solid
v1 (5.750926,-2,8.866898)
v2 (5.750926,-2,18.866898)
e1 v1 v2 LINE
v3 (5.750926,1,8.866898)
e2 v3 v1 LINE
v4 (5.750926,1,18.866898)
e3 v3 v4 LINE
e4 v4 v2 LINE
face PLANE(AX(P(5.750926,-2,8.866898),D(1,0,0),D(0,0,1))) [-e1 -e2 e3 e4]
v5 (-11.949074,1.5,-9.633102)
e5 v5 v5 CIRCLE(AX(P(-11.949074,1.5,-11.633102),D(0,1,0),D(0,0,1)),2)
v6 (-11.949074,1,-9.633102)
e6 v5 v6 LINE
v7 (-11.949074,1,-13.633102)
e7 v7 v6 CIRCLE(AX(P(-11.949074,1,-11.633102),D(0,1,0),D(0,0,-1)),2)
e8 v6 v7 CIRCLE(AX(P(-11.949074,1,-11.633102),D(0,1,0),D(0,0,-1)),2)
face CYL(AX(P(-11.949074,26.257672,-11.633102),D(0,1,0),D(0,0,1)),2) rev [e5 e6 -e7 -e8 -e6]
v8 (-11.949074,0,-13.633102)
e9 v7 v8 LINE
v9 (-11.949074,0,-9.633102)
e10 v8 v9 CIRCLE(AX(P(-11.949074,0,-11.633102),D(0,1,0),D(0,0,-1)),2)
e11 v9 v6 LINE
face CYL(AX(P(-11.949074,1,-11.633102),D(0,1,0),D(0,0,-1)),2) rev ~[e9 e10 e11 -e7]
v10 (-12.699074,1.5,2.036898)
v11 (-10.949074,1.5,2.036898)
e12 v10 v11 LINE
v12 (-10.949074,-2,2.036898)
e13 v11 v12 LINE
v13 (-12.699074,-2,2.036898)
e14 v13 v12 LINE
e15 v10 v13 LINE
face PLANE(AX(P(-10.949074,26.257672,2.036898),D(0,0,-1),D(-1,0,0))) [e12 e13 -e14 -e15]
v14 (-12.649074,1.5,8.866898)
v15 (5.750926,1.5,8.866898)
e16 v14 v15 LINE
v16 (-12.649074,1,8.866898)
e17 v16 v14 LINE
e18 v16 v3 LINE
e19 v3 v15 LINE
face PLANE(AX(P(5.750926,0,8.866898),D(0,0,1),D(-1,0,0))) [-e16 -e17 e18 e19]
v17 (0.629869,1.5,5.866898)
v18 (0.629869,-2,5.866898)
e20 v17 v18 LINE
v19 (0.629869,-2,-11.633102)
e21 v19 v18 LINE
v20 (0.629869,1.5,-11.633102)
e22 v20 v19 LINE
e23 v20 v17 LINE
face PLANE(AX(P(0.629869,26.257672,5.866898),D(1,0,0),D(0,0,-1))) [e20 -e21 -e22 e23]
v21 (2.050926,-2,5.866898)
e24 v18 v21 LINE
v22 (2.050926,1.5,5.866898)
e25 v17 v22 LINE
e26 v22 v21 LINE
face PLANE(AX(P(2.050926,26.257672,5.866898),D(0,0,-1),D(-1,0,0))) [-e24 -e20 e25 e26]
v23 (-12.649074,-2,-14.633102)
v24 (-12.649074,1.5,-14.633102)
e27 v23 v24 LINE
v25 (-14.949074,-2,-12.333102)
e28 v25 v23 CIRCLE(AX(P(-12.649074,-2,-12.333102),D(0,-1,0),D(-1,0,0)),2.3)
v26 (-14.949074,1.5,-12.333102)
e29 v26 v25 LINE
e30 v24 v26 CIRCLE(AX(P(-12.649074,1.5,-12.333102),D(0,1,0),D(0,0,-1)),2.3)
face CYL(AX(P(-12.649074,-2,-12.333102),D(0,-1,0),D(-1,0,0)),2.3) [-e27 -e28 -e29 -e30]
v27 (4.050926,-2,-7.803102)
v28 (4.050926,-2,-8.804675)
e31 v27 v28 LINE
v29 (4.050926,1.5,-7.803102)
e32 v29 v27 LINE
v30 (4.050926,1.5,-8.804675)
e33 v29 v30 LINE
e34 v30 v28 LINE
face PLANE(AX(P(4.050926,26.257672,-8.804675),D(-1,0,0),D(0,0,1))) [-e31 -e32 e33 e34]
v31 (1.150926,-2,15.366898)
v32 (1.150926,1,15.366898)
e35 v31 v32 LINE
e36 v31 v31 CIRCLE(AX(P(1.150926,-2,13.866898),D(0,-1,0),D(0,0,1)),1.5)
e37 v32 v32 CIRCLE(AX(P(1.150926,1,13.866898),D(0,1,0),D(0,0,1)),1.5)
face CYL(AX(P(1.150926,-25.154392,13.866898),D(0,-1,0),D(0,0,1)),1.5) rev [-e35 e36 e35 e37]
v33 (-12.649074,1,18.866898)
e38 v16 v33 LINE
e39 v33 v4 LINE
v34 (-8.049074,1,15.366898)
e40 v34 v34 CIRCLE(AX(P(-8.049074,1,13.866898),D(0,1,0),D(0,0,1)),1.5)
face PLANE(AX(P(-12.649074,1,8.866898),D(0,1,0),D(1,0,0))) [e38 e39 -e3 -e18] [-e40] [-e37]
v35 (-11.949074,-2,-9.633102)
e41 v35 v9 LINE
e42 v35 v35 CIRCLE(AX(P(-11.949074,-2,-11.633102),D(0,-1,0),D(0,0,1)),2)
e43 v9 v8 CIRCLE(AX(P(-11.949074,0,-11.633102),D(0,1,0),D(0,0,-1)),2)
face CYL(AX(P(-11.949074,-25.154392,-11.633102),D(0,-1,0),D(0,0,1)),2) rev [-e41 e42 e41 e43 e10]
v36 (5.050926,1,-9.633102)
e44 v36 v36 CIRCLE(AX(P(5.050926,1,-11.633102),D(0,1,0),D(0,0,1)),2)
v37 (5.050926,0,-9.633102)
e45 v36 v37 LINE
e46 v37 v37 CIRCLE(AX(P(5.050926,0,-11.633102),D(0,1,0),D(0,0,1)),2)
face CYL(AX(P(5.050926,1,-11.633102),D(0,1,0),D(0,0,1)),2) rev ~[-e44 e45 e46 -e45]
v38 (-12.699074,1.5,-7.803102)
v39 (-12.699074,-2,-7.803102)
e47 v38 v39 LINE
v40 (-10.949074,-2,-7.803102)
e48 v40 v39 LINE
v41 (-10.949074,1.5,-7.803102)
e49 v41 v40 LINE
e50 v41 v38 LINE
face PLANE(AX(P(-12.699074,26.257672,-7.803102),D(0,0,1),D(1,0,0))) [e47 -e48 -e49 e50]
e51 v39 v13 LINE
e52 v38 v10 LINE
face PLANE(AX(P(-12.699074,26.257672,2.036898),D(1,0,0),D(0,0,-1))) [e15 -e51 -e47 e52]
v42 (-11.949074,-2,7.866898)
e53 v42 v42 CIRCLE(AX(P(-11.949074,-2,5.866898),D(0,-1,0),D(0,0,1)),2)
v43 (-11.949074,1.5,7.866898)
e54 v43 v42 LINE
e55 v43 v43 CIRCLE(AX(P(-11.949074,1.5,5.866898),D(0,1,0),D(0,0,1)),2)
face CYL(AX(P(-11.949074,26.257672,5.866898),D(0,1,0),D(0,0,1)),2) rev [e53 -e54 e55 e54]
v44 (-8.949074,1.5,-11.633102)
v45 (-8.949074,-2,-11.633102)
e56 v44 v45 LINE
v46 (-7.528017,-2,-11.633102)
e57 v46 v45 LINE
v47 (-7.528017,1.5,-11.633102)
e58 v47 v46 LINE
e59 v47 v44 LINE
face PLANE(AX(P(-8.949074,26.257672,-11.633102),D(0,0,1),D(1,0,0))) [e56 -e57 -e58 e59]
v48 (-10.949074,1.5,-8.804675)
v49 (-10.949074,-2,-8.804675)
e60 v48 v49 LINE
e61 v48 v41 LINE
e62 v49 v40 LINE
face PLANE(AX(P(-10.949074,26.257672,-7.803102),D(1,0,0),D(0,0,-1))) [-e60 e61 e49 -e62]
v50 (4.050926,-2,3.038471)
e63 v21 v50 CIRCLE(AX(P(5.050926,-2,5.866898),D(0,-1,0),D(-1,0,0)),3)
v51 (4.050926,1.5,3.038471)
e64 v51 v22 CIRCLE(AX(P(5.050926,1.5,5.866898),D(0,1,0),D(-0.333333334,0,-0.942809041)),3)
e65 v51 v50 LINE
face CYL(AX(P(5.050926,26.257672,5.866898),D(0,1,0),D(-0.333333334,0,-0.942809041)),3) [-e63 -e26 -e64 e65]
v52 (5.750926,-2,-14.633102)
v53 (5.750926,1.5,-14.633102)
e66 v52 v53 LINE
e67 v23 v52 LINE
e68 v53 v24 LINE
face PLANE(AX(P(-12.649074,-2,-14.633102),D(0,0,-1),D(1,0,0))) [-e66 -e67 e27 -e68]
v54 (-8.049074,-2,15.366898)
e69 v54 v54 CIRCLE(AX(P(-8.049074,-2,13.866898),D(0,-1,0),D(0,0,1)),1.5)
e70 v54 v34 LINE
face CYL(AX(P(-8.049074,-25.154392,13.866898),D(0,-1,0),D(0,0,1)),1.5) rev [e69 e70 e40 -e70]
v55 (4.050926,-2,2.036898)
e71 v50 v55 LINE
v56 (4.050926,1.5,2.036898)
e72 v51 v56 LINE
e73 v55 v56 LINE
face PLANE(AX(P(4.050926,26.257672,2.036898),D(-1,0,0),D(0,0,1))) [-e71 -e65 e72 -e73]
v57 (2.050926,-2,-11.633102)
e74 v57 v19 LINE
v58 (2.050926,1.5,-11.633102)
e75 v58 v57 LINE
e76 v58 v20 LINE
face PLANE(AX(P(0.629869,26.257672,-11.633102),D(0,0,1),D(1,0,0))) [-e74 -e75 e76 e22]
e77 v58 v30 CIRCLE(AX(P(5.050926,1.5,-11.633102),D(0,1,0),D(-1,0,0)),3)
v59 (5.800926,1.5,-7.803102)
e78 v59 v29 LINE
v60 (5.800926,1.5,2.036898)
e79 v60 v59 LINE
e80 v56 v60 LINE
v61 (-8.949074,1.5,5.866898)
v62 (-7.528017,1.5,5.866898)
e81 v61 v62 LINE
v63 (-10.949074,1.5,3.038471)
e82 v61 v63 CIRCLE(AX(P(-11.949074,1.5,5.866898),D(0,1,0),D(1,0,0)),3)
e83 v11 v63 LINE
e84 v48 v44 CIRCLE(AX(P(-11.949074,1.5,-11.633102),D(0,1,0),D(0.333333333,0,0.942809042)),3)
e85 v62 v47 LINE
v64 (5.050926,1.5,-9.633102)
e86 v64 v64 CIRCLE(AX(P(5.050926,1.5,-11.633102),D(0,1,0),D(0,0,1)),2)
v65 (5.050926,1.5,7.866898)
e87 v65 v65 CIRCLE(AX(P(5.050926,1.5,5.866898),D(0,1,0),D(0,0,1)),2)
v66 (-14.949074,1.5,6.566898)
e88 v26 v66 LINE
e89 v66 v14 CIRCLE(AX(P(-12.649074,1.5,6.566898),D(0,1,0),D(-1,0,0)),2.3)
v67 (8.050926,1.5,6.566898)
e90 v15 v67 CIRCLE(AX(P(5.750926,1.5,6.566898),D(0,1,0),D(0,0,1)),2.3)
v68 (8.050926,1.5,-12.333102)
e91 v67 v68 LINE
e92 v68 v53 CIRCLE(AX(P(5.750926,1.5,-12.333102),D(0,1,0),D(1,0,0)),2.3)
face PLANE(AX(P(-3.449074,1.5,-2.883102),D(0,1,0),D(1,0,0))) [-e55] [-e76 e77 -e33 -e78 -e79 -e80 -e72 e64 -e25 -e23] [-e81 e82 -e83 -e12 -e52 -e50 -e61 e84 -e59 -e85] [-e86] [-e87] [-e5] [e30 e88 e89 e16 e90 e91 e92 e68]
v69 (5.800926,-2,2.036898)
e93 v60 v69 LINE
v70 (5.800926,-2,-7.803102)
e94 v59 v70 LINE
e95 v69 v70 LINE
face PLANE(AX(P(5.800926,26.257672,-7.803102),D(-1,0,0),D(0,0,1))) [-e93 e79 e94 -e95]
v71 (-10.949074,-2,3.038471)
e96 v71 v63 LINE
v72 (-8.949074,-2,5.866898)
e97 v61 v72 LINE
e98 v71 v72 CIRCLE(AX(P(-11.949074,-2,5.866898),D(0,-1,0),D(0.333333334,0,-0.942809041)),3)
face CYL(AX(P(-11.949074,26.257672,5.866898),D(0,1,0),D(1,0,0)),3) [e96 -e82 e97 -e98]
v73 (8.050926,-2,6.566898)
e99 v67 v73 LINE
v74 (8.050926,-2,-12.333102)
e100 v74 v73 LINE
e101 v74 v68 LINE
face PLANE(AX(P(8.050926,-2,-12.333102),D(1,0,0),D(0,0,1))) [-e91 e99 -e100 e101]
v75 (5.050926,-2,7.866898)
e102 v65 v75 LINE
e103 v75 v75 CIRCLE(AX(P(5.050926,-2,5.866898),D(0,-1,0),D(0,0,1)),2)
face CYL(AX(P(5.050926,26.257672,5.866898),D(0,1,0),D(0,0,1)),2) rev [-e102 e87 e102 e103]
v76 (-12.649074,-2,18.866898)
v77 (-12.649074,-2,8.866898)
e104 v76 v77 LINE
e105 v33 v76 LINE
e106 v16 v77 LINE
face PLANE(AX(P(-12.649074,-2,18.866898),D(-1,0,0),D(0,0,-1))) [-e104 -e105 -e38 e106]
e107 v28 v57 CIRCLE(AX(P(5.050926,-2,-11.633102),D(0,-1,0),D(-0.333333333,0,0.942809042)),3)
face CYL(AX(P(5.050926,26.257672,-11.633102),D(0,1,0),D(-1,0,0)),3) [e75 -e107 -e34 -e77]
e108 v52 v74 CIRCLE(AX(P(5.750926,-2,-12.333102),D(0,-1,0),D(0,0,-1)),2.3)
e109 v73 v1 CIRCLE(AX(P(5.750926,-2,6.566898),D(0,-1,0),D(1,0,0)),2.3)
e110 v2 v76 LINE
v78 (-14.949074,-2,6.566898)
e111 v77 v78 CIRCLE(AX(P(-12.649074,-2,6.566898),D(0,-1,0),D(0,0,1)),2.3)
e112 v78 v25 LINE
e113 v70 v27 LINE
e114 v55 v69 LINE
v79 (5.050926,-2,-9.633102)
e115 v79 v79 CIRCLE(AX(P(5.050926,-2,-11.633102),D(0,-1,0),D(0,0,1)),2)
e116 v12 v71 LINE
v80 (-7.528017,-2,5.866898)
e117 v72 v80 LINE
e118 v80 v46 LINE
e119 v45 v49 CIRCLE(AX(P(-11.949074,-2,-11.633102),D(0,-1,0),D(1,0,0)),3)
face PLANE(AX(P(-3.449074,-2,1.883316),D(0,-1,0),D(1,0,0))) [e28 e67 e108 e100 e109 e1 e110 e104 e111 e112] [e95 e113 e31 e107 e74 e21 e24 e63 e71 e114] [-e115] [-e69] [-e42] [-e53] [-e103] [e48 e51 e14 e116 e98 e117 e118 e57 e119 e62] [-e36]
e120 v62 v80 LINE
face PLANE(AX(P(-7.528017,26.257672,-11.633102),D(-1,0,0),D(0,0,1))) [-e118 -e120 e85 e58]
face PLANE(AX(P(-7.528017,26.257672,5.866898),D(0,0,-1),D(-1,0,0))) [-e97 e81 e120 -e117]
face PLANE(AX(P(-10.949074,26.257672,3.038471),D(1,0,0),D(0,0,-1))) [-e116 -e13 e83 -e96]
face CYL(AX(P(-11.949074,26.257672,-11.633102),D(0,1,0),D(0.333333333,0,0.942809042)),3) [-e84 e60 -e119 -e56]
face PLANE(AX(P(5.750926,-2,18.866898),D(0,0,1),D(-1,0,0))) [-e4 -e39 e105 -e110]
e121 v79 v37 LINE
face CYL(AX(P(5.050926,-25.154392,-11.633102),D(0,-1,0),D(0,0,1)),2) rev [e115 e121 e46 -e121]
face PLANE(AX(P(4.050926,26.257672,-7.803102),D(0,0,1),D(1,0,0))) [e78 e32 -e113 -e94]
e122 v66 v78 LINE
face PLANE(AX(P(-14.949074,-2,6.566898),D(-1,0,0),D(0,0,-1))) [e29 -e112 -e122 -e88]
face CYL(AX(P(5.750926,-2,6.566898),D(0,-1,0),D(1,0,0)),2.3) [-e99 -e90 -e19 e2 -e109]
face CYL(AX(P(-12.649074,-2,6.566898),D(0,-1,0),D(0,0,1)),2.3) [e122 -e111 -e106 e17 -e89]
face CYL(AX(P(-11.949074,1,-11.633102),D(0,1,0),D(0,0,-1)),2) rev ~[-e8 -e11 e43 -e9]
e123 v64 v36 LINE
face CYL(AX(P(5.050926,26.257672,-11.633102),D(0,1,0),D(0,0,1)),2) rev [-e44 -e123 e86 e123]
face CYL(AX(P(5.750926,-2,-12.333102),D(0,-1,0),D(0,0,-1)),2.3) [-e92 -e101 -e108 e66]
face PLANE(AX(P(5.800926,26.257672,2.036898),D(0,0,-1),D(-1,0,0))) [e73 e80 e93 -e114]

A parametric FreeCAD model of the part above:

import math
import FreeCAD as App
import Part
import Sketcher

V = App.Vector


def add_polygon(sketch, points):
    """Adds a closed chain of lines whose ends are joined by coincident constraints."""
    first, n = sketch.GeometryCount, len(points)
    for a, b in zip(points, points[1:] + points[:1]):
        sketch.addGeometry(Part.LineSegment(App.Vector(*a, 0), App.Vector(*b, 0)), False)
    for i in range(n):
        sketch.addConstraint(Sketcher.Constraint("Coincident", first + i, 2, first + (i + 1) % n, 1))

doc = App.newDocument("Part")
body = doc.addObject("PartDesign::Body", "Body")

# Sketch on XZ plane
sketch1 = body.newObject("Sketcher::SketchObject", "Sketch")
sketch1.AttachmentSupport = (doc.getObject("XZ_Plane"), [""])
sketch1.MapMode = "FlatFace"
sketch1.addGeometry([
    Part.LineSegment(V(5.8, -14.6, 0), V(-12.6, -14.6, 0)),  # 0
    Part.ArcOfCircle(Part.Circle(V(-12.6, -12.3, 0), V(0, 0, 1), 2.3), math.radians(180), math.radians(270)),  # 1
    Part.LineSegment(V(-14.9, -12.3, 0), V(-14.9, 6.6, 0)),  # 2
    Part.ArcOfCircle(Part.Circle(V(-12.6, 6.6, 0), V(0, 0, 1), 2.3), math.radians(90), math.radians(180)),  # 3
    Part.LineSegment(V(-12.6, 8.9, 0), V(5.8, 8.9, 0)),  # 4
    Part.ArcOfCircle(Part.Circle(V(5.8, 6.6, 0), V(0, 0, 1), 2.3), math.radians(0), math.radians(90)),  # 5
    Part.LineSegment(V(8.1, 6.6, 0), V(8.1, -12.3, 0)),  # 6
    Part.ArcOfCircle(Part.Circle(V(5.8, -12.3, 0), V(0, 0, 1), 2.3), math.radians(-90), math.radians(0)),  # 7
], False)
sketch1.addConstraint([
    Sketcher.Constraint("Tangent", 0, 2, 1, 2),
    Sketcher.Constraint("Tangent", 1, 1, 2, 1),
    Sketcher.Constraint("Tangent", 2, 2, 3, 2),
    Sketcher.Constraint("Tangent", 3, 1, 4, 1),
    Sketcher.Constraint("Tangent", 4, 2, 5, 2),
    Sketcher.Constraint("Tangent", 5, 1, 6, 1),
    Sketcher.Constraint("Tangent", 6, 2, 7, 2),
    Sketcher.Constraint("Tangent", 7, 1, 0, 1),
    Sketcher.Constraint("Horizontal", 0),
    Sketcher.Constraint("Vertical", 2),
    Sketcher.Constraint("Horizontal", 4),
    Sketcher.Constraint("Vertical", 6),
    Sketcher.Constraint("Equal", 1, 3),
    Sketcher.Constraint("Equal", 3, 5),
    Sketcher.Constraint("Equal", 5, 7),
    Sketcher.Constraint("Radius", 1, 2.3),
    Sketcher.Constraint("DistanceX", 0, 2, 0, 1, 18.4),
    Sketcher.Constraint("DistanceY", 2, 1, 2, 2, 18.9),
    Sketcher.Constraint("DistanceY", 1, 3, -1, 1, 12.333102),
    Sketcher.Constraint("DistanceX", 1, 3, -1, 1, 12.649074),
])
pad1 = body.newObject("PartDesign::Pad", "Pad")
pad1.Profile = sketch1
pad1.Length = 2
pad1.Reversed = True

# Sketch on XZ plane
sketch2 = body.newObject("Sketcher::SketchObject", "Sketch001")
sketch2.AttachmentSupport = (doc.getObject("XZ_Plane"), [""])
sketch2.MapMode = "FlatFace"
sketch2.AttachmentOffset = App.Placement(V(0, 0, -2), App.Rotation())
sketch2.addGeometry([
    Part.LineSegment(V(5.8, -13.6, 0), V(-12.6, -13.6, 0)),  # 0
    Part.ArcOfCircle(Part.Circle(V(-12.6, -12.3, 0), V(0, 0, 1), 1.3), math.radians(180), math.radians(270)),  # 1
    Part.LineSegment(V(-13.9, -12.3, 0), V(-13.9, 6.6, 0)),  # 2
    Part.ArcOfCircle(Part.Circle(V(-12.6, 6.6, 0), V(0, 0, 1), 1.3), math.radians(90), math.radians(180)),  # 3
    Part.LineSegment(V(-12.6, 7.9, 0), V(5.8, 7.9, 0)),  # 4
    Part.ArcOfCircle(Part.Circle(V(5.8, 6.6, 0), V(0, 0, 1), 1.3), math.radians(0), math.radians(90)),  # 5
    Part.LineSegment(V(7.1, 6.6, 0), V(7.1, -12.3, 0)),  # 6
    Part.ArcOfCircle(Part.Circle(V(5.8, -12.3, 0), V(0, 0, 1), 1.3), math.radians(-90), math.radians(0)),  # 7
], False)
sketch2.addConstraint([
    Sketcher.Constraint("Tangent", 0, 2, 1, 2),
    Sketcher.Constraint("Tangent", 1, 1, 2, 1),
    Sketcher.Constraint("Tangent", 2, 2, 3, 2),
    Sketcher.Constraint("Tangent", 3, 1, 4, 1),
    Sketcher.Constraint("Tangent", 4, 2, 5, 2),
    Sketcher.Constraint("Tangent", 5, 1, 6, 1),
    Sketcher.Constraint("Tangent", 6, 2, 7, 2),
    Sketcher.Constraint("Tangent", 7, 1, 0, 1),
    Sketcher.Constraint("Horizontal", 0),
    Sketcher.Constraint("Vertical", 2),
    Sketcher.Constraint("Horizontal", 4),
    Sketcher.Constraint("Vertical", 6),
    Sketcher.Constraint("Equal", 1, 3),
    Sketcher.Constraint("Equal", 3, 5),
    Sketcher.Constraint("Equal", 5, 7),
    Sketcher.Constraint("Radius", 1, 1.3),
    Sketcher.Constraint("DistanceX", 0, 2, 0, 1, 18.4),
    Sketcher.Constraint("DistanceY", 2, 1, 2, 2, 18.9),
    Sketcher.Constraint("DistanceY", 1, 3, -1, 1, 12.333102),
    Sketcher.Constraint("DistanceX", 1, 3, -1, 1, 12.649074),
])
pocket1 = body.newObject("PartDesign::Pocket", "Pocket")
pocket1.Profile = sketch2
pocket1.Length = 1
pocket1.Reversed = True

# Sketch on XZ plane
sketch3 = body.newObject("Sketcher::SketchObject", "Sketch002")
sketch3.AttachmentSupport = (doc.getObject("XZ_Plane"), [""])
sketch3.MapMode = "FlatFace"
sketch3.AttachmentOffset = App.Placement(V(0, 0, -1), App.Rotation())
sketch3.addGeometry([
    Part.Circle(V(5.1, -11.6, 0), V(0, 0, 1), 2),
    Part.Circle(V(5.1, 5.9, 0), V(0, 0, 1), 2),
    Part.Circle(V(-11.9, 5.9, 0), V(0, 0, 1), 2),
    Part.Circle(V(-11.9, -11.6, 0), V(0, 0, 1), 2),
], False)
sketch3.addConstraint([
    Sketcher.Constraint("Equal", 0, 1),
    Sketcher.Constraint("Equal", 1, 2),
    Sketcher.Constraint("Equal", 2, 3),
    Sketcher.Constraint("Horizontal", 1, 3, 2, 3),
    Sketcher.Constraint("Horizontal", 0, 3, 3, 3),
    Sketcher.Constraint("Vertical", 0, 3, 1, 3),
    Sketcher.Constraint("Vertical", 2, 3, 3, 3),
    Sketcher.Constraint("Diameter", 0, 4.0),
    Sketcher.Constraint("DistanceX", 2, 3, 1, 3, 17.0),
    Sketcher.Constraint("DistanceY", 0, 3, 1, 3, 17.5),
    Sketcher.Constraint("DistanceY", 0, 3, -1, 1, 11.633102),
    Sketcher.Constraint("DistanceX", -1, 1, 0, 3, 5.050926),
])
pocket2 = body.newObject("PartDesign::Pocket", "Pocket001")
pocket2.Profile = sketch3
pocket2.Type = "ThroughAll"
pocket2.Reversed = True

# Sketch on XZ plane
sketch4 = body.newObject("Sketcher::SketchObject", "Sketch003")
sketch4.AttachmentSupport = (doc.getObject("XZ_Plane"), [""])
sketch4.MapMode = "FlatFace"
sketch4.AttachmentOffset = App.Placement(V(0, 0, -1), App.Rotation())
sketch4.addGeometry([
    Part.LineSegment(V(4.1, 3, 0), V(4.1, -8.8, 0)),  # 0
    Part.ArcOfCircle(Part.Circle(V(5.1, -11.6, 0), V(0, 0, 1), 3), math.radians(109), math.radians(180)),  # 1
    Part.LineSegment(V(2.1, -11.6, 0), V(2.1, 5.9, 0)),  # 2
    Part.ArcOfCircle(Part.Circle(V(5.1, 5.9, 0), V(0, 0, 1), 3), math.radians(-180), math.radians(-109)),  # 3
    Part.LineSegment(V(-10.9, -8.8, 0), V(-10.9, 3, 0)),  # 4
    Part.ArcOfCircle(Part.Circle(V(-11.9, 5.9, 0), V(0, 0, 1), 3), math.radians(-71), math.radians(0)),  # 5
    Part.LineSegment(V(-8.9, 5.9, 0), V(-8.9, -11.6, 0)),  # 6
    Part.ArcOfCircle(Part.Circle(V(-11.9, -11.6, 0), V(0, 0, 1), 3), math.radians(0), math.radians(71)),  # 7
], False)
sketch4.addConstraint([
    Sketcher.Constraint("Coincident", 0, 2, 1, 1),
    Sketcher.Constraint("Tangent", 1, 2, 2, 1),
    Sketcher.Constraint("Tangent", 2, 2, 3, 1),
    Sketcher.Constraint("Coincident", 3, 2, 0, 1),
    Sketcher.Constraint("Coincident", 4, 2, 5, 1),
    Sketcher.Constraint("Tangent", 5, 2, 6, 1),
    Sketcher.Constraint("Tangent", 6, 2, 7, 1),
    Sketcher.Constraint("Coincident", 7, 2, 4, 1),
    Sketcher.Constraint("Vertical", 0),
    Sketcher.Constraint("Vertical", 2),
    Sketcher.Constraint("Vertical", 4),
    Sketcher.Constraint("Vertical", 6),
    Sketcher.Constraint("Equal", 1, 3),
    Sketcher.Constraint("Equal", 3, 5),
    Sketcher.Constraint("Equal", 5, 7),
    Sketcher.Constraint("Horizontal", 3, 3, 5, 3),
    Sketcher.Constraint("Horizontal", 1, 3, 7, 3),
    Sketcher.Constraint("Horizontal", 3, 2, 4, 2),
    Sketcher.Constraint("Radius", 1, 3.0),
    Sketcher.Constraint("DistanceY", 2, 1, 2, 2, 17.5),
    Sketcher.Constraint("DistanceX", 5, 3, 3, 3, 17.0),
    Sketcher.Constraint("DistanceX", 0, 2, 1, 3, 1.0),
    Sketcher.Constraint("DistanceY", 1, 3, -1, 1, 11.633102),
    Sketcher.Constraint("DistanceX", -1, 1, 1, 3, 5.050926),
])
pocket3 = body.newObject("PartDesign::Pocket", "Pocket002")
pocket3.Profile = sketch4
pocket3.Type = "ThroughAll"
pocket3.Reversed = True

# Sketch on XY plane
sketch5 = body.newObject("Sketcher::SketchObject", "Sketch004")
sketch5.AttachmentSupport = (doc.getObject("XY_Plane"), [""])
sketch5.MapMode = "FlatFace"
sketch5.AttachmentOffset = App.Placement(V(0, 0, 8.866898), App.Rotation())
add_polygon(sketch5, [(-12.6, 1), (-12.6, 0), (5.8, 0), (5.8, 1)])  # lines 0-3
sketch5.addConstraint([
    Sketcher.Constraint("Vertical", 0),
    Sketcher.Constraint("Horizontal", 1),
    Sketcher.Constraint("Vertical", 2),
    Sketcher.Constraint("Horizontal", 3),
    Sketcher.Constraint("PointOnObject", 0, 2, -1),
    Sketcher.Constraint("DistanceY", 0, 2, 0, 1, 1.0),
    Sketcher.Constraint("DistanceX", 1, 1, 1, 2, 18.4),
    Sketcher.Constraint("DistanceX", 0, 2, -1, 1, 12.649074),
])
pad2 = body.newObject("PartDesign::Pad", "Pad001")
pad2.Profile = sketch5
pad2.Length = 10

# Sketch on XZ plane
sketch6 = body.newObject("Sketcher::SketchObject", "Sketch005")
sketch6.AttachmentSupport = (doc.getObject("XZ_Plane"), [""])
sketch6.MapMode = "FlatFace"
sketch6.AttachmentOffset = App.Placement(V(0, 0, -1), App.Rotation())
sketch6.addGeometry([
    Part.Circle(V(1.2, 13.9, 0), V(0, 0, 1), 1.5),
    Part.Circle(V(-8, 13.9, 0), V(0, 0, 1), 1.5),
], False)
sketch6.addConstraint([
    Sketcher.Constraint("Equal", 0, 1),
    Sketcher.Constraint("Horizontal", 0, 3, 1, 3),
    Sketcher.Constraint("Diameter", 0, 3.0),
    Sketcher.Constraint("DistanceX", 1, 3, 0, 3, 9.2),
    Sketcher.Constraint("DistanceY", -1, 1, 0, 3, 13.866898),
    Sketcher.Constraint("DistanceX", -1, 1, 0, 3, 1.150926),
])
pocket4 = body.newObject("PartDesign::Pocket", "Pocket003")
pocket4.Profile = sketch6
pocket4.Type = "ThroughAll"
pocket4.Reversed = True

# Sketch on XZ plane
sketch7 = body.newObject("Sketcher::SketchObject", "Sketch006")
sketch7.AttachmentSupport = (doc.getObject("XZ_Plane"), [""])
sketch7.MapMode = "FlatFace"
sketch7.AttachmentOffset = App.Placement(V(0, 0, -2), App.Rotation())
sketch7.addGeometry([
    Part.LineSegment(V(5.8, -13.8, 0), V(-12.6, -13.8, 0)),  # 0
    Part.ArcOfCircle(Part.Circle(V(-12.6, -12.3, 0), V(0, 0, 1), 1.5), math.radians(180), math.radians(270)),  # 1
    Part.LineSegment(V(-14.1, -12.3, 0), V(-14.1, 6.6, 0)),  # 2
    Part.ArcOfCircle(Part.Circle(V(-12.6, 6.6, 0), V(0, 0, 1), 1.5), math.radians(90), math.radians(180)),  # 3
    Part.LineSegment(V(-12.6, 8.1, 0), V(5.8, 8.1, 0)),  # 4
    Part.ArcOfCircle(Part.Circle(V(5.8, 6.6, 0), V(0, 0, 1), 1.5), math.radians(0), math.radians(90)),  # 5
    Part.LineSegment(V(7.3, 6.6, 0), V(7.3, -12.3, 0)),  # 6
    Part.ArcOfCircle(Part.Circle(V(5.8, -12.3, 0), V(0, 0, 1), 1.5), math.radians(-90), math.radians(0)),  # 7
], False)
sketch7.addConstraint([
    Sketcher.Constraint("Tangent", 0, 2, 1, 2),
    Sketcher.Constraint("Tangent", 1, 1, 2, 1),
    Sketcher.Constraint("Tangent", 2, 2, 3, 2),
    Sketcher.Constraint("Tangent", 3, 1, 4, 1),
    Sketcher.Constraint("Tangent", 4, 2, 5, 2),
    Sketcher.Constraint("Tangent", 5, 1, 6, 1),
    Sketcher.Constraint("Tangent", 6, 2, 7, 2),
    Sketcher.Constraint("Tangent", 7, 1, 0, 1),
    Sketcher.Constraint("Horizontal", 0),
    Sketcher.Constraint("Vertical", 2),
    Sketcher.Constraint("Horizontal", 4),
    Sketcher.Constraint("Vertical", 6),
    Sketcher.Constraint("Equal", 1, 3),
    Sketcher.Constraint("Equal", 3, 5),
    Sketcher.Constraint("Equal", 5, 7),
    Sketcher.Constraint("Radius", 1, 1.5),
    Sketcher.Constraint("DistanceX", 0, 2, 0, 1, 18.4),
    Sketcher.Constraint("DistanceY", 2, 1, 2, 2, 18.9),
    Sketcher.Constraint("DistanceY", 1, 3, -1, 1, 12.333102),
    Sketcher.Constraint("DistanceX", 1, 3, -1, 1, 12.649074),
])
pocket5 = body.newObject("PartDesign::Pocket", "Pocket004")
pocket5.Profile = sketch7
pocket5.Length = 1
pocket5.Reversed = True

# Sketch on XZ plane
sketch8 = body.newObject("Sketcher::SketchObject", "Sketch007")
sketch8.AttachmentSupport = (doc.getObject("XZ_Plane"), [""])
sketch8.MapMode = "FlatFace"
sketch8.AttachmentOffset = App.Placement(V(0, 0, -1), App.Rotation())
add_polygon(sketch8, [(-8.9, -11.6), (-8.9, 5.9), (-7.5, 5.9), (-7.5, -11.6)])  # lines 0-3
add_polygon(sketch8, [(0.6, -11.6), (0.6, 5.9), (2.1, 5.9), (2.1, -11.6)])  # lines 4-7
add_polygon(sketch8, [(-12.7, -7.8), (-12.7, 2), (-10.9, 2), (-10.9, -7.8)])  # lines 8-11
add_polygon(sketch8, [(4.1, -7.8), (4.1, 2), (5.8, 2), (5.8, -7.8)])  # lines 12-15
sketch8.addConstraint([
    Sketcher.Constraint("Vertical", 0),
    Sketcher.Constraint("Horizontal", 1),
    Sketcher.Constraint("Vertical", 2),
    Sketcher.Constraint("Horizontal", 3),
    Sketcher.Constraint("Vertical", 4),
    Sketcher.Constraint("Horizontal", 5),
    Sketcher.Constraint("Vertical", 6),
    Sketcher.Constraint("Horizontal", 7),
    Sketcher.Constraint("Vertical", 8),
    Sketcher.Constraint("Horizontal", 9),
    Sketcher.Constraint("Vertical", 10),
    Sketcher.Constraint("Horizontal", 11),
    Sketcher.Constraint("Vertical", 12),
    Sketcher.Constraint("Horizontal", 13),
    Sketcher.Constraint("Vertical", 14),
    Sketcher.Constraint("Horizontal", 15),
    Sketcher.Constraint("Horizontal", 1, 2, 4, 2),
    Sketcher.Constraint("Horizontal", 3, 2, 6, 2),
    Sketcher.Constraint("Horizontal", 9, 2, 12, 2),
    Sketcher.Constraint("Horizontal", 11, 2, 14, 2),
    Sketcher.Constraint("Equal", 3, 5),
    Sketcher.Constraint("Equal", 11, 13),
    Sketcher.Constraint("DistanceY", 0, 1, 0, 2, 17.5),
    Sketcher.Constraint("DistanceX", 0, 2, 5, 2, 11.0),
    Sketcher.Constraint("DistanceX", 9, 2, 0, 2, 2.0),
    Sketcher.Constraint("DistanceX", 5, 2, 12, 2, 2.0),
    Sketcher.Constraint("DistanceX", 9, 1, 9, 2, 1.75),
    Sketcher.Constraint("DistanceY", 8, 1, 8, 2, 9.84),
    Sketcher.Constraint("DistanceY", 8, 2, 0, 2, 3.83),
    Sketcher.Constraint("DistanceY", -1, 1, 0, 2, 5.866898),
    Sketcher.Constraint("DistanceX", 1, 1, 1, 2, 1.421057),
    Sketcher.Constraint("DistanceX", -1, 1, 4, 2, 0.629869),
])
pocket6 = body.newObject("PartDesign::Pocket", "Pocket005")
pocket6.Profile = sketch8
pocket6.Type = "ThroughAll"
pocket6.Reversed = True

# Sketch on XZ plane
sketch9 = body.newObject("Sketcher::SketchObject", "Sketch008")
sketch9.AttachmentSupport = (doc.getObject("XZ_Plane"), [""])
sketch9.MapMode = "FlatFace"
sketch9.AttachmentOffset = App.Placement(V(0, 0, 2), App.Rotation())
sketch9.addGeometry([
    Part.LineSegment(V(8.1, -12.3, 0), V(8.1, 6.6, 0)),  # 0
    Part.ArcOfCircle(Part.Circle(V(5.8, 6.6, 0), V(0, 0, 1), 2.3), math.radians(0), math.radians(90)),  # 1
    Part.LineSegment(V(5.8, 8.9, 0), V(5.8, 18.9, 0)),  # 2
    Part.LineSegment(V(5.8, 18.9, 0), V(-12.6, 18.9, 0)),  # 3
    Part.LineSegment(V(-12.6, 18.9, 0), V(-12.6, 8.9, 0)),  # 4
    Part.ArcOfCircle(Part.Circle(V(-12.6, 6.6, 0), V(0, 0, 1), 2.3), math.radians(90), math.radians(180)),  # 5
    Part.LineSegment(V(-14.9, 6.6, 0), V(-14.9, -12.3, 0)),  # 6
    Part.ArcOfCircle(Part.Circle(V(-12.6, -12.3, 0), V(0, 0, 1), 2.3), math.radians(180), math.radians(270)),  # 7
    Part.LineSegment(V(-12.6, -14.6, 0), V(5.8, -14.6, 0)),  # 8
    Part.ArcOfCircle(Part.Circle(V(5.8, -12.3, 0), V(0, 0, 1), 2.3), math.radians(-90), math.radians(0)),  # 9
], False)
sketch9.addConstraint([
    Sketcher.Constraint("Tangent", 0, 2, 1, 1),
    Sketcher.Constraint("Coincident", 1, 2, 2, 1),
    Sketcher.Constraint("Coincident", 2, 2, 3, 1),
    Sketcher.Constraint("Coincident", 3, 2, 4, 1),
    Sketcher.Constraint("Coincident", 4, 2, 5, 1),
    Sketcher.Constraint("Tangent", 5, 2, 6, 1),
    Sketcher.Constraint("Tangent", 6, 2, 7, 1),
    Sketcher.Constraint("Tangent", 7, 2, 8, 1),
    Sketcher.Constraint("Tangent", 8, 2, 9, 1),
    Sketcher.Constraint("Tangent", 9, 2, 0, 1),
    Sketcher.Constraint("Vertical", 0),
    Sketcher.Constraint("Vertical", 2),
    Sketcher.Constraint("Horizontal", 3),
    Sketcher.Constraint("Vertical", 4),
    Sketcher.Constraint("Vertical", 6),
    Sketcher.Constraint("Horizontal", 8),
    Sketcher.Constraint("Equal", 1, 5),
    Sketcher.Constraint("Equal", 5, 7),
    Sketcher.Constraint("Equal", 7, 9),
    Sketcher.Constraint("Horizontal", 1, 3, 5, 3),
    Sketcher.Constraint("Vertical", 9, 3, 1, 2),
    Sketcher.Constraint("Vertical", 7, 3, 3, 2),
    Sketcher.Constraint("Radius", 1, 2.3),
    Sketcher.Constraint("DistanceY", 2, 1, 2, 2, 10.0),
    Sketcher.Constraint("DistanceX", 3, 2, 3, 1, 18.4),
    Sketcher.Constraint("DistanceY", 0, 1, 0, 2, 18.9),
    Sketcher.Constraint("DistanceY", -1, 1, 1, 3, 6.566898),
    Sketcher.Constraint("DistanceX", -1, 1, 1, 3, 5.750926),
])
pad3 = body.newObject("PartDesign::Pad", "Pad002")
pad3.Profile = sketch9
pad3.Length = 2
pad3.Reversed = True

# Sketch on XZ plane
sketch10 = body.newObject("Sketcher::SketchObject", "Sketch009")
sketch10.AttachmentSupport = (doc.getObject("XZ_Plane"), [""])
sketch10.MapMode = "FlatFace"
sketch10.addGeometry([
    Part.LineSegment(V(-12.7, -7.8, 0), V(-12.7, 2, 0)),  # 0
    Part.LineSegment(V(-12.7, 2, 0), V(-10.9, 2, 0)),  # 1
    Part.LineSegment(V(-10.9, 2, 0), V(-10.9, 3, 0)),  # 2
    Part.ArcOfCircle(Part.Circle(V(-11.9, 5.9, 0), V(0, 0, 1), 3), math.radians(-71), math.radians(0)),  # 3
    Part.LineSegment(V(-8.9, 5.9, 0), V(-7.5, 5.9, 0)),  # 4
    Part.LineSegment(V(-7.5, 5.9, 0), V(-7.5, -11.6, 0)),  # 5
    Part.LineSegment(V(-7.5, -11.6, 0), V(-8.9, -11.6, 0)),  # 6
    Part.ArcOfCircle(Part.Circle(V(-11.9, -11.6, 0), V(0, 0, 1), 3), math.radians(0), math.radians(71)),  # 7
    Part.LineSegment(V(-10.9, -8.8, 0), V(-10.9, -7.8, 0)),  # 8
    Part.LineSegment(V(-10.9, -7.8, 0), V(-12.7, -7.8, 0)),  # 9
], False)
sketch10.addConstraint([
    Sketcher.Constraint("Coincident", 0, 2, 1, 1),
    Sketcher.Constraint("Coincident", 1, 2, 2, 1),
    Sketcher.Constraint("Coincident", 2, 2, 3, 1),
    Sketcher.Constraint("Coincident", 3, 2, 4, 1),
    Sketcher.Constraint("Coincident", 4, 2, 5, 1),
    Sketcher.Constraint("Coincident", 5, 2, 6, 1),
    Sketcher.Constraint("Coincident", 6, 2, 7, 1),
    Sketcher.Constraint("Coincident", 7, 2, 8, 1),
    Sketcher.Constraint("Coincident", 8, 2, 9, 1),
    Sketcher.Constraint("Coincident", 9, 2, 0, 1),
    Sketcher.Constraint("Vertical", 0),
    Sketcher.Constraint("Horizontal", 1),
    Sketcher.Constraint("Vertical", 2),
    Sketcher.Constraint("Horizontal", 4),
    Sketcher.Constraint("Vertical", 5),
    Sketcher.Constraint("Horizontal", 6),
    Sketcher.Constraint("Vertical", 8),
    Sketcher.Constraint("Horizontal", 9),
    Sketcher.Constraint("Equal", 3, 7),
    Sketcher.Constraint("Horizontal", 7, 3, 5, 2),
    Sketcher.Constraint("Vertical", 3, 3, 7, 3),
    Sketcher.Constraint("Vertical", 2, 2, 7, 2),
    Sketcher.Constraint("Equal", 2, 8),
    Sketcher.Constraint("Radius", 3, 3.0),
    Sketcher.Constraint("DistanceY", 5, 2, 5, 1, 17.5),
    Sketcher.Constraint("DistanceX", 3, 3, 1, 2, 1.0),
    Sketcher.Constraint("DistanceX", 1, 1, 1, 2, 1.75),
    Sketcher.Constraint("DistanceY", 0, 1, 0, 2, 9.84),
    Sketcher.Constraint("DistanceY", 7, 3, 3, 3, 17.5),
    Sketcher.Constraint("DistanceY", -1, 1, 3, 3, 5.866898),
    Sketcher.Constraint("DistanceX", 4, 1, 4, 2, 1.421057),
    Sketcher.Constraint("DistanceX", 3, 3, -1, 1, 11.949074),
])
pocket7 = body.newObject("PartDesign::Pocket", "Pocket006")
pocket7.Profile = sketch10
pocket7.Type = "ThroughAll"
pocket7.Midplane = True

# Sketch on XZ plane
sketch11 = body.newObject("Sketcher::SketchObject", "Sketch010")
sketch11.AttachmentSupport = (doc.getObject("XZ_Plane"), [""])
sketch11.MapMode = "FlatFace"
sketch11.addGeometry([
    Part.LineSegment(V(0.6, 5.9, 0), V(2.1, 5.9, 0)),  # 0
    Part.ArcOfCircle(Part.Circle(V(5.1, 5.9, 0), V(0, 0, 1), 3), math.radians(-180), math.radians(-109)),  # 1
    Part.LineSegment(V(4.1, 3, 0), V(4.1, 2, 0)),  # 2
    Part.LineSegment(V(4.1, 2, 0), V(5.8, 2, 0)),  # 3
    Part.LineSegment(V(5.8, 2, 0), V(5.8, -7.8, 0)),  # 4
    Part.LineSegment(V(5.8, -7.8, 0), V(4.1, -7.8, 0)),  # 5
    Part.LineSegment(V(4.1, -7.8, 0), V(4.1, -8.8, 0)),  # 6
    Part.ArcOfCircle(Part.Circle(V(5.1, -11.6, 0), V(0, 0, 1), 3), math.radians(109), math.radians(180)),  # 7
    Part.LineSegment(V(2.1, -11.6, 0), V(0.6, -11.6, 0)),  # 8
    Part.LineSegment(V(0.6, -11.6, 0), V(0.6, 5.9, 0)),  # 9
], False)
sketch11.addConstraint([
    Sketcher.Constraint("Coincident", 0, 2, 1, 1),
    Sketcher.Constraint("Coincident", 1, 2, 2, 1),
    Sketcher.Constraint("Coincident", 2, 2, 3, 1),
    Sketcher.Constraint("Coincident", 3, 2, 4, 1),
    Sketcher.Constraint("Coincident", 4, 2, 5, 1),
    Sketcher.Constraint("Coincident", 5, 2, 6, 1),
    Sketcher.Constraint("Coincident", 6, 2, 7, 1),
    Sketcher.Constraint("Coincident", 7, 2, 8, 1),
    Sketcher.Constraint("Coincident", 8, 2, 9, 1),
    Sketcher.Constraint("Coincident", 9, 2, 0, 1),
    Sketcher.Constraint("Horizontal", 0),
    Sketcher.Constraint("Vertical", 2),
    Sketcher.Constraint("Horizontal", 3),
    Sketcher.Constraint("Vertical", 4),
    Sketcher.Constraint("Horizontal", 5),
    Sketcher.Constraint("Vertical", 6),
    Sketcher.Constraint("Horizontal", 8),
    Sketcher.Constraint("Vertical", 9),
    Sketcher.Constraint("Equal", 1, 7),
    Sketcher.Constraint("Horizontal", 1, 3, 0, 2),
    Sketcher.Constraint("Vertical", 1, 3, 7, 3),
    Sketcher.Constraint("Vertical", 2, 2, 5, 2),
    Sketcher.Constraint("Equal", 2, 6),
    Sketcher.Constraint("Radius", 1, 3.0),
    Sketcher.Constraint("DistanceY", 9, 1, 9, 2, 17.5),
    Sketcher.Constraint("DistanceX", 1, 2, 1, 3, 1.0),
    Sketcher.Constraint("DistanceX", 3, 1, 3, 2, 1.75),
    Sketcher.Constraint("DistanceY", 4, 2, 4, 1, 9.84),
    Sketcher.Constraint("DistanceY", 7, 3, 1, 3, 17.5),
    Sketcher.Constraint("DistanceY", -1, 1, 1, 3, 5.866898),
    Sketcher.Constraint("DistanceX", 0, 1, 0, 2, 1.421057),
    Sketcher.Constraint("DistanceX", -1, 1, 8, 2, 0.629869),
])
pocket8 = body.newObject("PartDesign::Pocket", "Pocket007")
pocket8.Profile = sketch11
pocket8.Type = "ThroughAll"
pocket8.Midplane = True

# Sketch on XZ plane
sketch12 = body.newObject("Sketcher::SketchObject", "Sketch011")
sketch12.AttachmentSupport = (doc.getObject("XZ_Plane"), [""])
sketch12.MapMode = "FlatFace"
sketch12.addGeometry(Part.Circle(V(-8, 13.9, 0), V(0, 0, 1), 1.5), False)
sketch12.addConstraint([
    Sketcher.Constraint("Diameter", 0, 3.0),
    Sketcher.Constraint("DistanceY", -1, 1, 0, 3, 13.866898),
    Sketcher.Constraint("DistanceX", 0, 3, -1, 1, 8.049074),
])
pocket9 = body.newObject("PartDesign::Pocket", "Pocket008")
pocket9.Profile = sketch12
pocket9.Type = "ThroughAll"
pocket9.Midplane = True

# Sketch on XZ plane
sketch13 = body.newObject("Sketcher::SketchObject", "Sketch012")
sketch13.AttachmentSupport = (doc.getObject("XZ_Plane"), [""])
sketch13.MapMode = "FlatFace"
sketch13.addGeometry(Part.Circle(V(1.2, 13.9, 0), V(0, 0, 1), 1.5), False)
sketch13.addConstraint([
    Sketcher.Constraint("Diameter", 0, 3.0),
    Sketcher.Constraint("DistanceY", -1, 1, 0, 3, 13.866898),
    Sketcher.Constraint("DistanceX", -1, 1, 0, 3, 1.150926),
])
pocket10 = body.newObject("PartDesign::Pocket", "Pocket009")
pocket10.Profile = sketch13
pocket10.Type = "ThroughAll"
pocket10.Midplane = True

# Sketch on XZ plane
sketch14 = body.newObject("Sketcher::SketchObject", "Sketch013")
sketch14.AttachmentSupport = (doc.getObject("XZ_Plane"), [""])
sketch14.MapMode = "FlatFace"
sketch14.addGeometry([
    Part.Circle(V(-11.9, 5.9, 0), V(0, 0, 1), 2),
    Part.Circle(V(5.1, 5.9, 0), V(0, 0, 1), 2),
    Part.Circle(V(-11.9, -11.6, 0), V(0, 0, 1), 2),
    Part.Circle(V(5.1, -11.6, 0), V(0, 0, 1), 2),
], False)
sketch14.addConstraint([
    Sketcher.Constraint("Equal", 0, 1),
    Sketcher.Constraint("Equal", 1, 2),
    Sketcher.Constraint("Equal", 2, 3),
    Sketcher.Constraint("Horizontal", 0, 3, 1, 3),
    Sketcher.Constraint("Horizontal", 2, 3, 3, 3),
    Sketcher.Constraint("Vertical", 0, 3, 2, 3),
    Sketcher.Constraint("Vertical", 1, 3, 3, 3),
    Sketcher.Constraint("Diameter", 0, 4.0),
    Sketcher.Constraint("DistanceX", 0, 3, 1, 3, 17.0),
    Sketcher.Constraint("DistanceY", 2, 3, 0, 3, 17.5),
    Sketcher.Constraint("DistanceY", -1, 1, 0, 3, 5.866898),
    Sketcher.Constraint("DistanceX", 0, 3, -1, 1, 11.949074),
])
pocket11 = body.newObject("PartDesign::Pocket", "Pocket010")
pocket11.Profile = sketch14
pocket11.Type = "ThroughAll"
pocket11.Midplane = True

# Sketch on XZ plane
sketch15 = body.newObject("Sketcher::SketchObject", "Sketch014")
sketch15.AttachmentSupport = (doc.getObject("XZ_Plane"), [""])
sketch15.MapMode = "FlatFace"
sketch15.AttachmentOffset = App.Placement(V(0, 0, -2), App.Rotation())
sketch15.addGeometry([
    Part.LineSegment(V(5.8, -13.8, 0), V(-12.6, -13.8, 0)),  # 0
    Part.ArcOfCircle(Part.Circle(V(-12.6, -12.3, 0), V(0, 0, 1), 1.5), math.radians(180), math.radians(270)),  # 1
    Part.LineSegment(V(-14.1, -12.3, 0), V(-14.1, 6.6, 0)),  # 2
    Part.ArcOfCircle(Part.Circle(V(-12.6, 6.6, 0), V(0, 0, 1), 1.5), math.radians(90), math.radians(180)),  # 3
    Part.LineSegment(V(-12.6, 8.1, 0), V(5.8, 8.1, 0)),  # 4
    Part.ArcOfCircle(Part.Circle(V(5.8, 6.6, 0), V(0, 0, 1), 1.5), math.radians(0), math.radians(90)),  # 5
    Part.LineSegment(V(7.3, 6.6, 0), V(7.3, -12.3, 0)),  # 6
    Part.ArcOfCircle(Part.Circle(V(5.8, -12.3, 0), V(0, 0, 1), 1.5), math.radians(-90), math.radians(0)),  # 7
], False)
sketch15.addConstraint([
    Sketcher.Constraint("Tangent", 0, 2, 1, 2),
    Sketcher.Constraint("Tangent", 1, 1, 2, 1),
    Sketcher.Constraint("Tangent", 2, 2, 3, 2),
    Sketcher.Constraint("Tangent", 3, 1, 4, 1),
    Sketcher.Constraint("Tangent", 4, 2, 5, 2),
    Sketcher.Constraint("Tangent", 5, 1, 6, 1),
    Sketcher.Constraint("Tangent", 6, 2, 7, 2),
    Sketcher.Constraint("Tangent", 7, 1, 0, 1),
    Sketcher.Constraint("Horizontal", 0),
    Sketcher.Constraint("Vertical", 2),
    Sketcher.Constraint("Horizontal", 4),
    Sketcher.Constraint("Vertical", 6),
    Sketcher.Constraint("Equal", 1, 3),
    Sketcher.Constraint("Equal", 3, 5),
    Sketcher.Constraint("Equal", 5, 7),
    Sketcher.Constraint("Radius", 1, 1.5),
    Sketcher.Constraint("DistanceX", 0, 2, 0, 1, 18.4),
    Sketcher.Constraint("DistanceY", 2, 1, 2, 2, 18.9),
    Sketcher.Constraint("DistanceY", 1, 3, -1, 1, 12.333102),
    Sketcher.Constraint("DistanceX", 1, 3, -1, 1, 12.649074),
])
pad4 = body.newObject("PartDesign::Pad", "Pad003")
pad4.Profile = sketch15
pad4.Length = 1

# Sketch on XZ plane
sketch16 = body.newObject("Sketcher::SketchObject", "Sketch015")
sketch16.AttachmentSupport = (doc.getObject("XZ_Plane"), [""])
sketch16.MapMode = "FlatFace"
sketch16.AttachmentOffset = App.Placement(V(0, 0, -1), App.Rotation())
sketch16.addGeometry([
    Part.Circle(V(5.1, -11.6, 0), V(0, 0, 1), 2),  # 0
    Part.Circle(V(-11.9, -11.6, 0), V(0, 0, 1), 2),  # 1
    Part.Circle(V(-11.9, 5.9, 0), V(0, 0, 1), 2),  # 2
    Part.Circle(V(5.1, 5.9, 0), V(0, 0, 1), 2),  # 3
    Part.LineSegment(V(-10.9, 3, 0), V(-10.9, 2, 0)),  # 4
    Part.LineSegment(V(-10.9, 2, 0), V(-12.7, 2, 0)),  # 5
    Part.LineSegment(V(-12.7, 2, 0), V(-12.7, -7.8, 0)),  # 6
    Part.LineSegment(V(-12.7, -7.8, 0), V(-10.9, -7.8, 0)),  # 7
    Part.LineSegment(V(-10.9, -7.8, 0), V(-10.9, -8.8, 0)),  # 8
    Part.ArcOfCircle(Part.Circle(V(-11.9, -11.6, 0), V(0, 0, 1), 3), math.radians(0), math.radians(71)),  # 9
    Part.LineSegment(V(-8.9, -11.6, 0), V(-7.5, -11.6, 0)),  # 10
    Part.LineSegment(V(-7.5, -11.6, 0), V(-7.5, 5.9, 0)),  # 11
    Part.LineSegment(V(-7.5, 5.9, 0), V(-8.9, 5.9, 0)),  # 12
    Part.ArcOfCircle(Part.Circle(V(-11.9, 5.9, 0), V(0, 0, 1), 3), math.radians(-71), math.radians(0)),  # 13
    Part.LineSegment(V(4.1, 2, 0), V(4.1, 3, 0)),  # 14
    Part.ArcOfCircle(Part.Circle(V(5.1, 5.9, 0), V(0, 0, 1), 3), math.radians(-180), math.radians(-109)),  # 15
    Part.LineSegment(V(2.1, 5.9, 0), V(0.6, 5.9, 0)),  # 16
    Part.LineSegment(V(0.6, 5.9, 0), V(0.6, -11.6, 0)),  # 17
    Part.LineSegment(V(0.6, -11.6, 0), V(2.1, -11.6, 0)),  # 18
    Part.ArcOfCircle(Part.Circle(V(5.1, -11.6, 0), V(0, 0, 1), 3), math.radians(109), math.radians(180)),  # 19
    Part.LineSegment(V(4.1, -8.8, 0), V(4.1, -7.8, 0)),  # 20
    Part.LineSegment(V(4.1, -7.8, 0), V(5.8, -7.8, 0)),  # 21
    Part.LineSegment(V(5.8, -7.8, 0), V(5.8, 2, 0)),  # 22
    Part.LineSegment(V(5.8, 2, 0), V(4.1, 2, 0)),  # 23
], False)
sketch16.addConstraint([
    Sketcher.Constraint("Coincident", 4, 2, 5, 1),
    Sketcher.Constraint("Coincident", 5, 2, 6, 1),
    Sketcher.Constraint("Coincident", 6, 2, 7, 1),
    Sketcher.Constraint("Coincident", 7, 2, 8, 1),
    Sketcher.Constraint("Coincident", 8, 2, 9, 2),
    Sketcher.Constraint("Coincident", 9, 1, 10, 1),
    Sketcher.Constraint("Coincident", 10, 2, 11, 1),
    Sketcher.Constraint("Coincident", 11, 2, 12, 1),
    Sketcher.Constraint("Coincident", 12, 2, 13, 2),
    Sketcher.Constraint("Coincident", 13, 1, 4, 1),
    Sketcher.Constraint("Coincident", 14, 2, 15, 2),
    Sketcher.Constraint("Coincident", 15, 1, 16, 1),
    Sketcher.Constraint("Coincident", 16, 2, 17, 1),
    Sketcher.Constraint("Coincident", 17, 2, 18, 1),
    Sketcher.Constraint("Coincident", 18, 2, 19, 2),
    Sketcher.Constraint("Coincident", 19, 1, 20, 1),
    Sketcher.Constraint("Coincident", 20, 2, 21, 1),
    Sketcher.Constraint("Coincident", 21, 2, 22, 1),
    Sketcher.Constraint("Coincident", 22, 2, 23, 1),
    Sketcher.Constraint("Coincident", 23, 2, 14, 1),
    Sketcher.Constraint("Vertical", 4),
    Sketcher.Constraint("Horizontal", 5),
    Sketcher.Constraint("Vertical", 6),
    Sketcher.Constraint("Horizontal", 7),
    Sketcher.Constraint("Vertical", 8),
    Sketcher.Constraint("Horizontal", 10),
    Sketcher.Constraint("Vertical", 11),
    Sketcher.Constraint("Horizontal", 12),
    Sketcher.Constraint("Vertical", 14),
    Sketcher.Constraint("Horizontal", 16),
    Sketcher.Constraint("Vertical", 17),
    Sketcher.Constraint("Horizontal", 18),
    Sketcher.Constraint("Vertical", 20),
    Sketcher.Constraint("Horizontal", 21),
    Sketcher.Constraint("Vertical", 22),
    Sketcher.Constraint("Horizontal", 23),
    Sketcher.Constraint("Coincident", 9, 3, 1, 3),
    Sketcher.Constraint("Coincident", 13, 3, 2, 3),
    Sketcher.Constraint("Coincident", 15, 3, 3, 3),
    Sketcher.Constraint("Coincident", 19, 3, 0, 3),
    Sketcher.Constraint("Equal", 0, 1),
    Sketcher.Constraint("Equal", 1, 2),
    Sketcher.Constraint("Equal", 2, 3),
    Sketcher.Constraint("Equal", 9, 13),
    Sketcher.Constraint("Equal", 13, 15),
    Sketcher.Constraint("Equal", 15, 19),
    Sketcher.Constraint("Horizontal", 0, 3, 1, 3),
    Sketcher.Constraint("Horizontal", 2, 3, 3, 3),
    Sketcher.Constraint("Horizontal", 19, 3, 9, 1),
    Sketcher.Constraint("Horizontal", 15, 3, 11, 2),
    Sketcher.Constraint("Horizontal", 13, 1, 14, 2),
    Sketcher.Constraint("Horizontal", 12, 2, 15, 1),
    Sketcher.Constraint("Horizontal", 10, 2, 17, 2),
    Sketcher.Constraint("Horizontal", 8, 2, 19, 1),
    Sketcher.Constraint("Horizontal", 7, 2, 20, 2),
    Sketcher.Constraint("Horizontal", 5, 2, 22, 2),
    Sketcher.Constraint("Vertical", 1, 3, 2, 3),
    Sketcher.Constraint("Vertical", 0, 3, 3, 3),
    Sketcher.Constraint("Vertical", 4, 2, 7, 2),
    Sketcher.Constraint("Equal", 12, 16),
    Sketcher.Constraint("Equal", 7, 21),
    Sketcher.Constraint("Equal", 4, 8),
    Sketcher.Constraint("Diameter", 0, 4.0),
    Sketcher.Constraint("Radius", 9, 3.0),
    Sketcher.Constraint("DistanceY", 11, 1, 11, 2, 17.5),
    Sketcher.Constraint("DistanceX", 1, 3, 0, 3, 17.0),
    Sketcher.Constraint("DistanceX", 2, 3, 4, 2, 1.0),
    Sketcher.Constraint("DistanceX", 5, 2, 5, 1, 1.75),
    Sketcher.Constraint("DistanceY", 6, 2, 6, 1, 9.84),
    Sketcher.Constraint("DistanceY", 0, 3, -1, 1, 11.633102),
    Sketcher.Constraint("DistanceX", 10, 1, 10, 2, 1.421057),
    Sketcher.Constraint("DistanceX", -1, 1, 16, 2, 0.629869),
])
pocket12 = body.newObject("PartDesign::Pocket", "Pocket011")
pocket12.Profile = sketch16
pocket12.Type = "ThroughAll"
pocket12.Midplane = True

# Sketch on XZ plane
sketch17 = body.newObject("Sketcher::SketchObject", "Sketch016")
sketch17.AttachmentSupport = (doc.getObject("XZ_Plane"), [""])
sketch17.MapMode = "FlatFace"
sketch17.AttachmentOffset = App.Placement(V(0, 0, -1.5), App.Rotation())
sketch17.addGeometry([
    Part.LineSegment(V(5.8, -14.6, 0), V(-12.6, -14.6, 0)),  # 0
    Part.ArcOfCircle(Part.Circle(V(-12.6, -12.3, 0), V(0, 0, 1), 2.3), math.radians(180), math.radians(270)),  # 1
    Part.LineSegment(V(-14.9, -12.3, 0), V(-14.9, 6.6, 0)),  # 2
    Part.ArcOfCircle(Part.Circle(V(-12.6, 6.6, 0), V(0, 0, 1), 2.3), math.radians(90), math.radians(180)),  # 3
    Part.LineSegment(V(-12.6, 8.9, 0), V(5.8, 8.9, 0)),  # 4
    Part.ArcOfCircle(Part.Circle(V(5.8, 6.6, 0), V(0, 0, 1), 2.3), math.radians(0), math.radians(90)),  # 5
    Part.LineSegment(V(8.1, 6.6, 0), V(8.1, -12.3, 0)),  # 6
    Part.ArcOfCircle(Part.Circle(V(5.8, -12.3, 0), V(0, 0, 1), 2.3), math.radians(-90), math.radians(0)),  # 7
], False)
sketch17.addConstraint([
    Sketcher.Constraint("Tangent", 0, 2, 1, 2),
    Sketcher.Constraint("Tangent", 1, 1, 2, 1),
    Sketcher.Constraint("Tangent", 2, 2, 3, 2),
    Sketcher.Constraint("Tangent", 3, 1, 4, 1),
    Sketcher.Constraint("Tangent", 4, 2, 5, 2),
    Sketcher.Constraint("Tangent", 5, 1, 6, 1),
    Sketcher.Constraint("Tangent", 6, 2, 7, 2),
    Sketcher.Constraint("Tangent", 7, 1, 0, 1),
    Sketcher.Constraint("Horizontal", 0),
    Sketcher.Constraint("Vertical", 2),
    Sketcher.Constraint("Horizontal", 4),
    Sketcher.Constraint("Vertical", 6),
    Sketcher.Constraint("Equal", 1, 3),
    Sketcher.Constraint("Equal", 3, 5),
    Sketcher.Constraint("Equal", 5, 7),
    Sketcher.Constraint("Radius", 1, 2.3),
    Sketcher.Constraint("DistanceX", 0, 2, 0, 1, 18.4),
    Sketcher.Constraint("DistanceY", 2, 1, 2, 2, 18.9),
    Sketcher.Constraint("DistanceY", 1, 3, -1, 1, 12.333102),
    Sketcher.Constraint("DistanceX", 1, 3, -1, 1, 12.649074),
])
pocket13 = body.newObject("PartDesign::Pocket", "Pocket012")
pocket13.Profile = sketch17
pocket13.Length = 0.5

doc.recompute()
